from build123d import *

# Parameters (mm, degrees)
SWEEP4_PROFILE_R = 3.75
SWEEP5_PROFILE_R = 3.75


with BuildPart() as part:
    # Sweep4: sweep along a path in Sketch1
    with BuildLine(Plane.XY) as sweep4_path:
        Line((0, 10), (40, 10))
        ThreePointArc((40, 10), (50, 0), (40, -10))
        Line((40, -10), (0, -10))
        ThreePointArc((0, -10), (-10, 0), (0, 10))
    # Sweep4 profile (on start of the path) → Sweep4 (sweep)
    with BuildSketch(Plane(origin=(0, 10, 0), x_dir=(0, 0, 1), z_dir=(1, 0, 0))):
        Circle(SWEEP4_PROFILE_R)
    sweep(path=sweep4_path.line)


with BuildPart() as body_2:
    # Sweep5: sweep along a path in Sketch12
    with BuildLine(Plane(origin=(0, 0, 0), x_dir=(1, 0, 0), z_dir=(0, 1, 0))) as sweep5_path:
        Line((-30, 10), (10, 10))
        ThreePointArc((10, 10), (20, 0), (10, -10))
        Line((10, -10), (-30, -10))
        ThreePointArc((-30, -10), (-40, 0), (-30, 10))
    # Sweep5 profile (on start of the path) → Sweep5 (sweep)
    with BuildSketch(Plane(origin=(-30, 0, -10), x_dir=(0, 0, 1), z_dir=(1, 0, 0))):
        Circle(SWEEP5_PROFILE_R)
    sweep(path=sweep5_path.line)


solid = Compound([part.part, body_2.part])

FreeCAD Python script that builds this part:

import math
import FreeCAD as App
import Part
import Sketcher
from FreeCAD import Vector

doc = App.newDocument("Part")
body = doc.addObject("PartDesign::Body", "Body")

# Sketch on YZ plane
sketch1 = body.newObject("Sketcher::SketchObject", "Sketch")
sketch1.AttachmentSupport = (doc.getObject("YZ_Plane"), [""])
sketch1.MapMode = "FlatFace"
sketch1.addGeometry(Part.Circle(Vector(10, 0, 0), Vector(0, 0, 1), 3.75), False)
sketch1.addConstraint(Sketcher.Constraint("PointOnObject", 0, 3, -1))
sketch1.addConstraint(Sketcher.Constraint("Diameter", 0, 7.5))
sketch1.addConstraint(Sketcher.Constraint("DistanceX", -1, 1, 0, 3, 10.0))

# Sketch on XY plane
sketch2 = body.newObject("Sketcher::SketchObject", "Sketch001")
sketch2.AttachmentSupport = (doc.getObject("XY_Plane"), [""])
sketch2.MapMode = "FlatFace"
sketch2.addGeometry(Part.LineSegment(Vector(0, 10, 0), Vector(40, 10, 0)), False)
sketch2.addGeometry(Part.ArcOfCircle(Part.Circle(Vector(40, 0, 0), Vector(0, 0, 1), 10), math.radians(-90), math.radians(90)), False)
sketch2.addGeometry(Part.LineSegment(Vector(40, -10, 0), Vector(0, -10, 0)), False)
sketch2.addGeometry(Part.ArcOfCircle(Part.Circle(Vector(0, 0, 0), Vector(0, 0, 1), 10), math.radians(90), math.radians(270)), False)
sketch2.addConstraint(Sketcher.Constraint("Tangent", 0, 2, 1, 2))
sketch2.addConstraint(Sketcher.Constraint("Tangent", 1, 1, 2, 1))
sketch2.addConstraint(Sketcher.Constraint("Tangent", 2, 2, 3, 2))
sketch2.addConstraint(Sketcher.Constraint("Tangent", 3, 1, 0, 1))
sketch2.addConstraint(Sketcher.Constraint("Horizontal", 0))
sketch2.addConstraint(Sketcher.Constraint("Horizontal", 2))
sketch2.addConstraint(Sketcher.Constraint("Coincident", 3, 3, -1, 1))
sketch2.addConstraint(Sketcher.Constraint("Radius", 1, 10.0))
sketch2.addConstraint(Sketcher.Constraint("DistanceX", 0, 1, 0, 2, 40.0))
doc.recompute()

additivepipe = body.newObject("PartDesign::AdditivePipe", "AdditivePipe")
additivepipe.Profile = sketch1
additivepipe.Spine = (sketch2, ["Edge1", "Edge2", "Edge3", "Edge4"])
body2 = doc.addObject("PartDesign::Body", "Body001")

# Sketch on YZ plane
sketch3 = body2.newObject("Sketcher::SketchObject", "Sketch002")
sketch3.AttachmentSupport = (doc.getObject("YZ_Plane001"), [""])
sketch3.MapMode = "FlatFace"
sketch3.AttachmentOffset = App.Placement(Vector(0, 0, -30), App.Rotation())
sketch3.addGeometry(Part.Circle(Vector(0, -10, 0), Vector(0, 0, 1), 3.75), False)
sketch3.addConstraint(Sketcher.Constraint("PointOnObject", 0, 3, -2))
sketch3.addConstraint(Sketcher.Constraint("Diameter", 0, 7.5))
sketch3.addConstraint(Sketcher.Constraint("DistanceY", 0, 3, -1, 1, 10.0))

# Sketch on XZ plane
sketch4 = body2.newObject("Sketcher::SketchObject", "Sketch003")
sketch4.AttachmentSupport = (doc.getObject("XZ_Plane001"), [""])
sketch4.MapMode = "FlatFace"
sketch4.addGeometry(Part.LineSegment(Vector(-30, -10, 0), Vector(10, -10, 0)), False)
sketch4.addGeometry(Part.ArcOfCircle(Part.Circle(Vector(10, 0, 0), Vector(0, 0, 1), 10), math.radians(-90), math.radians(90)), False)
sketch4.addGeometry(Part.LineSegment(Vector(10, 10, 0), Vector(-30, 10, 0)), False)
sketch4.addGeometry(Part.ArcOfCircle(Part.Circle(Vector(-30, 0, 0), Vector(0, 0, 1), 10), math.radians(90), math.radians(270)), False)
sketch4.addConstraint(Sketcher.Constraint("Tangent", 0, 2, 1, 1))
sketch4.addConstraint(Sketcher.Constraint("Tangent", 1, 2, 2, 1))
sketch4.addConstraint(Sketcher.Constraint("Tangent", 2, 2, 3, 1))
sketch4.addConstraint(Sketcher.Constraint("Tangent", 3, 2, 0, 1))
sketch4.addConstraint(Sketcher.Constraint("Horizontal", 0))
sketch4.addConstraint(Sketcher.Constraint("Horizontal", 2))
sketch4.addConstraint(Sketcher.Constraint("PointOnObject", 1, 3, -1))
sketch4.addConstraint(Sketcher.Constraint("Radius", 1, 10.0))
sketch4.addConstraint(Sketcher.Constraint("DistanceX", 0, 1, 0, 2, 40.0))
sketch4.addConstraint(Sketcher.Constraint("DistanceX", -1, 1, 1, 3, 10.0))
doc.recompute()

additivepipe2 = body2.newObject("PartDesign::AdditivePipe", "AdditivePipe001")
additivepipe2.Profile = sketch3
additivepipe2.Spine = (sketch4, ["Edge1", "Edge2", "Edge3", "Edge4"])

doc.recompute()
